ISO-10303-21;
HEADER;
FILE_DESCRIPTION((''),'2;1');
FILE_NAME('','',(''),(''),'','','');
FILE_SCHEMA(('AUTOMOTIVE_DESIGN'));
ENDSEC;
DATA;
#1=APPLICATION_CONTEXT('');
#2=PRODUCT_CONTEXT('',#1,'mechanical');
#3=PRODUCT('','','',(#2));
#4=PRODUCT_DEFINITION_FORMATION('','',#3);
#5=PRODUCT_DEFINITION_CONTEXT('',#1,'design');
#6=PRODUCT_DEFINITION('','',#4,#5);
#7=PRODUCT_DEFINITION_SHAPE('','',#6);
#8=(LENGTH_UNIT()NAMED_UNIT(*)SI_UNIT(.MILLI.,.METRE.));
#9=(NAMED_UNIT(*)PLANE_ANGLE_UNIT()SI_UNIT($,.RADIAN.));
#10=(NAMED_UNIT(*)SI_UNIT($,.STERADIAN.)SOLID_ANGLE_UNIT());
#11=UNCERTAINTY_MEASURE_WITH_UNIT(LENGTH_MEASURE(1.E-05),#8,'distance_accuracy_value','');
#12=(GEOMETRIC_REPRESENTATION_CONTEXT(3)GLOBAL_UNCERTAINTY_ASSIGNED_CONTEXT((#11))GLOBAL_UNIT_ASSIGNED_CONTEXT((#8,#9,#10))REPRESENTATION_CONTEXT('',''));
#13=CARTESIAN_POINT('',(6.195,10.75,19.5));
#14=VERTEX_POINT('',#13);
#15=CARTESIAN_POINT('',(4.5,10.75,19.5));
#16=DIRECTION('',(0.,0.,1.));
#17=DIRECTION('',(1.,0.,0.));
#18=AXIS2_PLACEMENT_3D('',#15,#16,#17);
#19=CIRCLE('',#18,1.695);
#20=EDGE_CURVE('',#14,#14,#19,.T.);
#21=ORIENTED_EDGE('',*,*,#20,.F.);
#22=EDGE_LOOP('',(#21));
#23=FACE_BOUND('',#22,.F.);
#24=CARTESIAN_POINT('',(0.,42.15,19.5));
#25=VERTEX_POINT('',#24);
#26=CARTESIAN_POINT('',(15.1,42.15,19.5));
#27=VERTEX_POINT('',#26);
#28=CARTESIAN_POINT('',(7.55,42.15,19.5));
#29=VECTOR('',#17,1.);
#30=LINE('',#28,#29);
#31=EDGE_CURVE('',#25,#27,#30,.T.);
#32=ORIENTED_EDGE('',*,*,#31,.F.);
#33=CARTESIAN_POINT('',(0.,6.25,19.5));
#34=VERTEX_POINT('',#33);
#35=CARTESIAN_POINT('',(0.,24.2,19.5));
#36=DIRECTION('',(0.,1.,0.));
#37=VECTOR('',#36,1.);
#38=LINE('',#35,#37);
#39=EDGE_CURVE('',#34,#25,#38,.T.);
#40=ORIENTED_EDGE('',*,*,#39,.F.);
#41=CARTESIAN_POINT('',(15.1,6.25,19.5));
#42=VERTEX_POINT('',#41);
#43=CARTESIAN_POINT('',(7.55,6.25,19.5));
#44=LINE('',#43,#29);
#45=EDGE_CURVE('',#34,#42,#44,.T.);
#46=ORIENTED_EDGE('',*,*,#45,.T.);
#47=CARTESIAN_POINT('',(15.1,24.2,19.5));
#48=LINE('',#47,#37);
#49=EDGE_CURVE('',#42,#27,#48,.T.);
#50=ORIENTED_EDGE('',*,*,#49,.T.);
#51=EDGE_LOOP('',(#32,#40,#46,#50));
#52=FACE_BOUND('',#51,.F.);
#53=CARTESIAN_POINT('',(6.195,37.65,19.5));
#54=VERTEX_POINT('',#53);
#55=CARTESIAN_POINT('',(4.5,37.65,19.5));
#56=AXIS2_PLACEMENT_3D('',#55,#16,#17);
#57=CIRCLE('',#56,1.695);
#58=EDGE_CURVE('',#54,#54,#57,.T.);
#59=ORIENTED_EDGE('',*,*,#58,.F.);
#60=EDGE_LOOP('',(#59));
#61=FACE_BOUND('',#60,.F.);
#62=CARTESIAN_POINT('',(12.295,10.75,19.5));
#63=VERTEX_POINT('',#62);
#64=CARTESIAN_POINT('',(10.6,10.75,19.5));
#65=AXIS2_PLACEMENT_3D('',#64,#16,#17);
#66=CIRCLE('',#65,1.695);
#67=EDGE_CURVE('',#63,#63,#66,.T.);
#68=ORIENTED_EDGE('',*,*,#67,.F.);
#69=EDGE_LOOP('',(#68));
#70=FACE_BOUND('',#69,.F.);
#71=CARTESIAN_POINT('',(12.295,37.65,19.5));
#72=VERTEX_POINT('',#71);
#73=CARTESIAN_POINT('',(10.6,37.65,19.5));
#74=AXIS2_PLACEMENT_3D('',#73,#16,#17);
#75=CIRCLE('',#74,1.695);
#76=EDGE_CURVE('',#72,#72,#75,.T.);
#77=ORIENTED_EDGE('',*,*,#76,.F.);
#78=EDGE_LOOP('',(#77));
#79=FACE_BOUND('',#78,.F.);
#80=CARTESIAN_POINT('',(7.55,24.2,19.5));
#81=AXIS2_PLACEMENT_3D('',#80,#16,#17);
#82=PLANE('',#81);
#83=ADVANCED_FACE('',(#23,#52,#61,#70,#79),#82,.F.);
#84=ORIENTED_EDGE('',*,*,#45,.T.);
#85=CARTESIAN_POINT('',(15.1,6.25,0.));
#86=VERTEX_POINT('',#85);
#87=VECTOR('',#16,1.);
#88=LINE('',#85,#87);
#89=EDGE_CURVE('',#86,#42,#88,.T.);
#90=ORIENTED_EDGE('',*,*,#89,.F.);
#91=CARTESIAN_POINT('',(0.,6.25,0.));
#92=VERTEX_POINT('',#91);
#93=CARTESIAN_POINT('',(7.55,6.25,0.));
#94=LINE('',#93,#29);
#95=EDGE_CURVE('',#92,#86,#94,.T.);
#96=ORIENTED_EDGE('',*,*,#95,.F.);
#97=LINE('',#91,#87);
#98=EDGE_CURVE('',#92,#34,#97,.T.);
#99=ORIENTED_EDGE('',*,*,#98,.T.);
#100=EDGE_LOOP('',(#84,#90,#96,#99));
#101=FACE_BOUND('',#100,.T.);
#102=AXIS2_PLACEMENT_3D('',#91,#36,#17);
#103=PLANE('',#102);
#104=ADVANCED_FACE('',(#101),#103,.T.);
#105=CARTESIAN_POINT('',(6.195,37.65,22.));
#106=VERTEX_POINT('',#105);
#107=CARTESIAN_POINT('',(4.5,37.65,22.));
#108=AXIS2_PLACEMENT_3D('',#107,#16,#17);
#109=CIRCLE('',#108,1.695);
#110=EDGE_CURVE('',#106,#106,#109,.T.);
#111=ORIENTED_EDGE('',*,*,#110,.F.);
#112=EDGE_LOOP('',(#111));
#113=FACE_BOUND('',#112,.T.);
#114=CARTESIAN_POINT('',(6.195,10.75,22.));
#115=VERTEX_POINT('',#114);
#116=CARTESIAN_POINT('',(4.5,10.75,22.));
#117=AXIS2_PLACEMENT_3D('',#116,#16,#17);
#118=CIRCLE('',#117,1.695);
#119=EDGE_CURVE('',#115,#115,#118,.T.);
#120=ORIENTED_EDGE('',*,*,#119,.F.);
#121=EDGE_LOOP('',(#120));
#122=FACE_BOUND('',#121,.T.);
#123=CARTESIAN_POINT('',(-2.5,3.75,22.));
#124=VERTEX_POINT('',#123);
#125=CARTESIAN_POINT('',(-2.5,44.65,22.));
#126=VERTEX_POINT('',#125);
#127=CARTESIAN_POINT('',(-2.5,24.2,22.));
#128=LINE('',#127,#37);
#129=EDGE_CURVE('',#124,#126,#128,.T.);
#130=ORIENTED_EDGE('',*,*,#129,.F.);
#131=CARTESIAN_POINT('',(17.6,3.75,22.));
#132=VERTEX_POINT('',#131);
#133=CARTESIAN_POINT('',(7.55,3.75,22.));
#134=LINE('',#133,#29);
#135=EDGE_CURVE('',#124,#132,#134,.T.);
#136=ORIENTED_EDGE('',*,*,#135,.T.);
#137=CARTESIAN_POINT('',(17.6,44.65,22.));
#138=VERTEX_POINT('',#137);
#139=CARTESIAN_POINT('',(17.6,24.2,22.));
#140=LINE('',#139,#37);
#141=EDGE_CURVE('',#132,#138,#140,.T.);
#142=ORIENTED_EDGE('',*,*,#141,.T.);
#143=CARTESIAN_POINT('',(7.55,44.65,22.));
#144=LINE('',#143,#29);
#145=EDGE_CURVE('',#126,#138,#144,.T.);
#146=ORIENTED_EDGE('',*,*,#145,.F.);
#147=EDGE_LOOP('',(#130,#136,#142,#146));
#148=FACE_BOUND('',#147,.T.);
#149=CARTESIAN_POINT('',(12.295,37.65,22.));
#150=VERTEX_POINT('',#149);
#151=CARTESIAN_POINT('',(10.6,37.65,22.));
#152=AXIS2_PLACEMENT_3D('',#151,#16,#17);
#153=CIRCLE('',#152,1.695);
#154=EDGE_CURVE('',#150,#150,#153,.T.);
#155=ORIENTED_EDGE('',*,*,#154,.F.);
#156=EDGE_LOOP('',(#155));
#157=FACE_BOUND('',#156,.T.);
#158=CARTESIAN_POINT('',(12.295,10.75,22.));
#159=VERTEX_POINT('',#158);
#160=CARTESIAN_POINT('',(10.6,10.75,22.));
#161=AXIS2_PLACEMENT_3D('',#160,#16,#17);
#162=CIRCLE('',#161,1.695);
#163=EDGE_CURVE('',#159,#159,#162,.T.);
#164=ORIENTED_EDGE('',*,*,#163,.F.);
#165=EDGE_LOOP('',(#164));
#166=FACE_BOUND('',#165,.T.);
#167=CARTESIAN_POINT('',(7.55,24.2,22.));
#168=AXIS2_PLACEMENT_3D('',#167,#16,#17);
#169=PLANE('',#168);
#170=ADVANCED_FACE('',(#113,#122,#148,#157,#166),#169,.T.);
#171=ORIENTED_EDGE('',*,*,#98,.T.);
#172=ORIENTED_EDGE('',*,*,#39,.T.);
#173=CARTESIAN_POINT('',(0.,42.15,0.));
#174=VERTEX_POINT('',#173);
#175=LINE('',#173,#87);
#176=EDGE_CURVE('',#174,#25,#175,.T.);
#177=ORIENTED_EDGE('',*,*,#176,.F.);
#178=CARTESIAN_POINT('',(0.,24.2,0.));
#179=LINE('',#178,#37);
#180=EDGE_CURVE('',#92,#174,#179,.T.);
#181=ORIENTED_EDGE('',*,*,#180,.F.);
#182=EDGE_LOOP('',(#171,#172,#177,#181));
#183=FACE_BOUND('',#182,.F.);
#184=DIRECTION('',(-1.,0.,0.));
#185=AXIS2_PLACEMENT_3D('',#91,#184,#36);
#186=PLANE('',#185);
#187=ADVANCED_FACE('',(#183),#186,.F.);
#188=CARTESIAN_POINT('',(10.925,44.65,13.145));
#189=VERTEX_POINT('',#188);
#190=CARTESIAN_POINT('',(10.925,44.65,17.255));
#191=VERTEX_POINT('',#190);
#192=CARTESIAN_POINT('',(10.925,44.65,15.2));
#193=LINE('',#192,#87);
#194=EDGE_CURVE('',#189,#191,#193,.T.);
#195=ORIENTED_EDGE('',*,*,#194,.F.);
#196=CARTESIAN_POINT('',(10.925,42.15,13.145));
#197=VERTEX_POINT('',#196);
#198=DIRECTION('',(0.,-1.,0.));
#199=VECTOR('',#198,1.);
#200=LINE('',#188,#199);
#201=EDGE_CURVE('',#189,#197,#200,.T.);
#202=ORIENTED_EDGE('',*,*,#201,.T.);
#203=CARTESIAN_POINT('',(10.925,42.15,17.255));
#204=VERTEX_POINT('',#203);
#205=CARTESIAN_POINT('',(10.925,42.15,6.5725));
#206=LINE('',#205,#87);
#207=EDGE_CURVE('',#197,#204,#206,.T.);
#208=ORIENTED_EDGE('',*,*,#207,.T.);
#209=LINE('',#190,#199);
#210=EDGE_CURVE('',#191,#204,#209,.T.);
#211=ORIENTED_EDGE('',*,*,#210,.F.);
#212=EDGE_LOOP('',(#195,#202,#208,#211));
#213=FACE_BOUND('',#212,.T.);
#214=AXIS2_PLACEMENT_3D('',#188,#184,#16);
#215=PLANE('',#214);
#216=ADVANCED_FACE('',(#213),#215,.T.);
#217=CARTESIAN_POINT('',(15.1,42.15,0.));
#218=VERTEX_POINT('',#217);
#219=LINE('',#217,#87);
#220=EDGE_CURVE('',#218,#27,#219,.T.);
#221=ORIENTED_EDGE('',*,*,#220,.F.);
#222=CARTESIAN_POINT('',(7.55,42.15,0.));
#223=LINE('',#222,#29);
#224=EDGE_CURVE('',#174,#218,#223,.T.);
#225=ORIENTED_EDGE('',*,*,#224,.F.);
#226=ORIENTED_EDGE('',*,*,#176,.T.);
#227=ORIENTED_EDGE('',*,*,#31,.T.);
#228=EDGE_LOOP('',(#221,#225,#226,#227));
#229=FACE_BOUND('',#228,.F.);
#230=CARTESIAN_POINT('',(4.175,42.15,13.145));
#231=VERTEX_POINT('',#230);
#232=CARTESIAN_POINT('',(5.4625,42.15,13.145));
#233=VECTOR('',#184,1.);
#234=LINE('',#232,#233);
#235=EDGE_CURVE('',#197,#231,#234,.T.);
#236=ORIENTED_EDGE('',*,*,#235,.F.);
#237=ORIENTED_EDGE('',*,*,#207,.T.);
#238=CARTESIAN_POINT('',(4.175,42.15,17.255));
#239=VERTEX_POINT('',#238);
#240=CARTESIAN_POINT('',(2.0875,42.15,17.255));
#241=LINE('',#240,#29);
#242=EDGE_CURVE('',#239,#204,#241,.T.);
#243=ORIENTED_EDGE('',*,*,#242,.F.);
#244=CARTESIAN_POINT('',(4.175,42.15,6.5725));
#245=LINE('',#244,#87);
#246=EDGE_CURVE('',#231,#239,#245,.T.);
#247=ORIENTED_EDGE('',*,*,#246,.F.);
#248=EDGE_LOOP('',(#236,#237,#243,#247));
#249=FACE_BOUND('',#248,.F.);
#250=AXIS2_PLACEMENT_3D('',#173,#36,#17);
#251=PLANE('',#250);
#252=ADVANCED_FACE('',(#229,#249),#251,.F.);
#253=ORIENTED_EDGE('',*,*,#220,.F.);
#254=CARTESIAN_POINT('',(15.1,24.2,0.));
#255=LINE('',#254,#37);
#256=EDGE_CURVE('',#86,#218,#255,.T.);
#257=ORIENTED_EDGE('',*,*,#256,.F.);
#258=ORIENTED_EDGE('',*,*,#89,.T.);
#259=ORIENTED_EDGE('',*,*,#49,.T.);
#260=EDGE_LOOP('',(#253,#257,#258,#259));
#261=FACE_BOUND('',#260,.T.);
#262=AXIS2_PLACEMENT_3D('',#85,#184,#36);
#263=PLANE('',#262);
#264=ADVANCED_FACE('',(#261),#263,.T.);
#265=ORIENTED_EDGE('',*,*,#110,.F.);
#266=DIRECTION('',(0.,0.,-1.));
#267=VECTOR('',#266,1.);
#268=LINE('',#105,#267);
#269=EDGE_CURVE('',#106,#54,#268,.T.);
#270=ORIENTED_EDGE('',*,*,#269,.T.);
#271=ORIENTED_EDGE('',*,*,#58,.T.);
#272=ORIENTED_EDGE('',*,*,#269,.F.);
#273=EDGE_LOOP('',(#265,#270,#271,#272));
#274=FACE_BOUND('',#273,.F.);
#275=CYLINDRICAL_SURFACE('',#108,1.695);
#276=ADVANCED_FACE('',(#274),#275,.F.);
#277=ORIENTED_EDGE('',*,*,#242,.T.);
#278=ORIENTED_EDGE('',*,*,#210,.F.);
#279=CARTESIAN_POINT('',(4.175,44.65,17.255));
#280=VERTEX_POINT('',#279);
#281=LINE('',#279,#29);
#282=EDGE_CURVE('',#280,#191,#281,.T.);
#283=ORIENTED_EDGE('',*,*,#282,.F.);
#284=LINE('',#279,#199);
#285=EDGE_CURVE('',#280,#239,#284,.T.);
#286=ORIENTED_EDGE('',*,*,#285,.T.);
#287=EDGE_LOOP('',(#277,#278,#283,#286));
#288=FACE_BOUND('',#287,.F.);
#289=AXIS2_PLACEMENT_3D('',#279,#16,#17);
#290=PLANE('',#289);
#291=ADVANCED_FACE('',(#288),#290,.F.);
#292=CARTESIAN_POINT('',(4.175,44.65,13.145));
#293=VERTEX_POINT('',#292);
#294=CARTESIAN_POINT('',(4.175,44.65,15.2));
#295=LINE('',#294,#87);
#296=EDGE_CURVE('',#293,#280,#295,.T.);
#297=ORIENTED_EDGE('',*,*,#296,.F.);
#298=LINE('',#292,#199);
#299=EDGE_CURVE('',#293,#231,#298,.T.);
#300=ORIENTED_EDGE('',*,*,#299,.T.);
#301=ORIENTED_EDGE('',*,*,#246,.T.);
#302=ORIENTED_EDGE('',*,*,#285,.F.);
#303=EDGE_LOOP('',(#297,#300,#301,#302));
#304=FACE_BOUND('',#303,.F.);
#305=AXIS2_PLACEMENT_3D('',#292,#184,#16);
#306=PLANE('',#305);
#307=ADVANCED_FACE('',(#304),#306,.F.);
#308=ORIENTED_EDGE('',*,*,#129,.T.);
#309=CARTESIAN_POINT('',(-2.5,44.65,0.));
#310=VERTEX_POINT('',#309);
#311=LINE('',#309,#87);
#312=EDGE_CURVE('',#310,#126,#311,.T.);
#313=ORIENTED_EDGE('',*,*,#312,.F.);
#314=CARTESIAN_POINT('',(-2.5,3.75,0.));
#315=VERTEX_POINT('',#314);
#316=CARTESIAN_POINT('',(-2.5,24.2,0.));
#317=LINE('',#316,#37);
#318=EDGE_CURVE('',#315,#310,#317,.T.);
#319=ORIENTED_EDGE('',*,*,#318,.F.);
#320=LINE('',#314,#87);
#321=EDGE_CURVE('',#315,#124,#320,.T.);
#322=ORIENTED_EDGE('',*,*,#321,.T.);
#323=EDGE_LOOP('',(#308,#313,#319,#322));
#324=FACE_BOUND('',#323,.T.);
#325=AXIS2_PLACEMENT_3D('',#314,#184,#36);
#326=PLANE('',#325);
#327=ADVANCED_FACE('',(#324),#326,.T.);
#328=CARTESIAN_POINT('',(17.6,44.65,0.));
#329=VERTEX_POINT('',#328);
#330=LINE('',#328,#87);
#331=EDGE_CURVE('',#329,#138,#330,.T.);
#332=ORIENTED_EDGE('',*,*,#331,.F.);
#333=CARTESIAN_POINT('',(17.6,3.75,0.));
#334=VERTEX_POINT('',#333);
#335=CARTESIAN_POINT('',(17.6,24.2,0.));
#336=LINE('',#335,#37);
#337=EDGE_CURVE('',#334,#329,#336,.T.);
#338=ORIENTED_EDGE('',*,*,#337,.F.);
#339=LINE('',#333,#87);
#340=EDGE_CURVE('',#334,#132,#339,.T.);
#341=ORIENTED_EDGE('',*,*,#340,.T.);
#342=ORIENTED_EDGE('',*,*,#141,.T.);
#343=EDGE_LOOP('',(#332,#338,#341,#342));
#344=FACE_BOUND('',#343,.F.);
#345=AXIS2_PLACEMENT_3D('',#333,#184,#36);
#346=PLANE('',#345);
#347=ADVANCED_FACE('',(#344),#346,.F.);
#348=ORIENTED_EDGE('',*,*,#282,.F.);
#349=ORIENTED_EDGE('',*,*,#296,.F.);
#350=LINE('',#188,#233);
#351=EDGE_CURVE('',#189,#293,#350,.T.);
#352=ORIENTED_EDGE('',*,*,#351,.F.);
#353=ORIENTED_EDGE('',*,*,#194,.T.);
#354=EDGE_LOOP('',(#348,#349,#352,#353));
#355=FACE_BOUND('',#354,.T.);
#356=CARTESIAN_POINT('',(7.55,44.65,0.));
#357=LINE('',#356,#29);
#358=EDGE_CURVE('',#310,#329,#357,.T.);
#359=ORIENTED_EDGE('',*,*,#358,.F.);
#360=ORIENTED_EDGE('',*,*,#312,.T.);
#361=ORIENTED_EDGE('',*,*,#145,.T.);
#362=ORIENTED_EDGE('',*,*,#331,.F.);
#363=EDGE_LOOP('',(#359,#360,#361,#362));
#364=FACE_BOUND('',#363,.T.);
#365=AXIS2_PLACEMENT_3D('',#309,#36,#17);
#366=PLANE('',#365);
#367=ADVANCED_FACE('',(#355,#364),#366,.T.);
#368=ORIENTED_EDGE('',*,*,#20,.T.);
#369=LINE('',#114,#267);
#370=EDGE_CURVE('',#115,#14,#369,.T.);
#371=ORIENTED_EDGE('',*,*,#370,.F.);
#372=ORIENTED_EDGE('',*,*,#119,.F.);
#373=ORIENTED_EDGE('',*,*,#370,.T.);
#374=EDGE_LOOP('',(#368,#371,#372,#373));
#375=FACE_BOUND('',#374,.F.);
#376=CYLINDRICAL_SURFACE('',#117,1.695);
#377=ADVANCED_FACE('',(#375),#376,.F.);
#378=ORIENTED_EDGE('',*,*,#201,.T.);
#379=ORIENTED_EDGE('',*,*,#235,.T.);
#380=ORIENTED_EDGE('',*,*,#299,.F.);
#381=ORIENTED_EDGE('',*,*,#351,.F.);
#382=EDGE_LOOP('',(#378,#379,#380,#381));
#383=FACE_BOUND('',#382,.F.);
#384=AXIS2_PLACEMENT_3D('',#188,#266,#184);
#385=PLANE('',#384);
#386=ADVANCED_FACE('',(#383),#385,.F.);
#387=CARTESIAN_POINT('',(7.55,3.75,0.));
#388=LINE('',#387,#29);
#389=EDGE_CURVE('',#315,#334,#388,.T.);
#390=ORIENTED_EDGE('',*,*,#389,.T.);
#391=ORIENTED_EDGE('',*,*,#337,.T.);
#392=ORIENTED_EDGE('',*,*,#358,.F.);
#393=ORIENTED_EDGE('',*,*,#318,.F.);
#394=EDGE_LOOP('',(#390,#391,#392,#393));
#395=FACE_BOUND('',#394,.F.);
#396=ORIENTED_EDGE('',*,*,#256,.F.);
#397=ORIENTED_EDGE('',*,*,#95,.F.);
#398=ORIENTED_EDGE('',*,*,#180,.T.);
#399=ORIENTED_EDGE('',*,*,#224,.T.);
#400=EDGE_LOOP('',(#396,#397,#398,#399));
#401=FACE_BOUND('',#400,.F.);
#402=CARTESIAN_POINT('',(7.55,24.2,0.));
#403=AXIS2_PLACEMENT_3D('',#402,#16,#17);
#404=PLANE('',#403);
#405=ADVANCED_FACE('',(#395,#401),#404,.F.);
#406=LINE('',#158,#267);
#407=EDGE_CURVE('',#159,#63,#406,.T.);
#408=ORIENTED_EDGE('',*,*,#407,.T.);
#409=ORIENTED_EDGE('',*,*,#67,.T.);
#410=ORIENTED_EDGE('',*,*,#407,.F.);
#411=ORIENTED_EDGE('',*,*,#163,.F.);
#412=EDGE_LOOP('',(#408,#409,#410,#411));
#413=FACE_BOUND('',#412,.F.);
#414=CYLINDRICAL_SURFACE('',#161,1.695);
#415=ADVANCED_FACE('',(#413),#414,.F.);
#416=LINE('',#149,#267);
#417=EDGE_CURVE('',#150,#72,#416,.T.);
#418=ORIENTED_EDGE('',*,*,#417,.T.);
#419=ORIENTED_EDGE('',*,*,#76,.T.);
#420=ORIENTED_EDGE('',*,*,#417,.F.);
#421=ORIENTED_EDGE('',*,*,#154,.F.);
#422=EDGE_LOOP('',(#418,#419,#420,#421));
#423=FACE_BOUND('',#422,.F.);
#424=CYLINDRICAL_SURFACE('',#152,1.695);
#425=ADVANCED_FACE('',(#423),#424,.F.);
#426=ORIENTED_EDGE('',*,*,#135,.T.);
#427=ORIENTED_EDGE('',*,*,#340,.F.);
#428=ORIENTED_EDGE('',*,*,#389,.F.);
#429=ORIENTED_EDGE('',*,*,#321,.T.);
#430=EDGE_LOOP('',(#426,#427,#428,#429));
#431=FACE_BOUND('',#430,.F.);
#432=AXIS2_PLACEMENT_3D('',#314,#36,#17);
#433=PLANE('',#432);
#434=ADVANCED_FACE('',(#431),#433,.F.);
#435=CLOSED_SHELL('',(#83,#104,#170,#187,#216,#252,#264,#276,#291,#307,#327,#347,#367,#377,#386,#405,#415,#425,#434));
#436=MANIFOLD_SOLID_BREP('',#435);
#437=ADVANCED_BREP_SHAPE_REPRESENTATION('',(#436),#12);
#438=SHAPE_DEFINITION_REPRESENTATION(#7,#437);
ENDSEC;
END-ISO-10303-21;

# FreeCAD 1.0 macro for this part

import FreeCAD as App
import Part
import Sketcher

V = App.Vector


def add_polygon(sketch, points):
    """Adds a closed chain of lines whose ends are joined by coincident constraints."""
    first, n = sketch.GeometryCount, len(points)
    for a, b in zip(points, points[1:] + points[:1]):
        sketch.addGeometry(Part.LineSegment(App.Vector(*a, 0), App.Vector(*b, 0)), False)
    for i in range(n):
        sketch.addConstraint(Sketcher.Constraint("Coincident", first + i, 2, first + (i + 1) % n, 1))

doc = App.newDocument("Part")
body = doc.addObject("PartDesign::Body", "Body")

# Sketch on XY plane
sketch1 = body.newObject("Sketcher::SketchObject", "Sketch")
sketch1.AttachmentSupport = (doc.getObject("XY_Plane"), [""])
sketch1.MapMode = "FlatFace"
add_polygon(sketch1, [(-2, 45), (-2, 4), (18, 4), (18, 45)])  # lines 0-3
sketch1.addConstraint([
    Sketcher.Constraint("Vertical", 0),
    Sketcher.Constraint("Horizontal", 1),
    Sketcher.Constraint("Vertical", 2),
    Sketcher.Constraint("Horizontal", 3),
    Sketcher.Constraint("DistanceX", 1, 1, 1, 2, 20.1),
    Sketcher.Constraint("DistanceY", 0, 2, 0, 1, 40.9),
    Sketcher.Constraint("DistanceX", 0, 2, -1, 1, 2.5),
    Sketcher.Constraint("DistanceY", -1, 1, 0, 2, 3.75),
])
pad1 = body.newObject("PartDesign::Pad", "Pad")
pad1.Profile = sketch1
pad1.Length = 22

# Sketch on XY plane
sketch2 = body.newObject("Sketcher::SketchObject", "Sketch001")
sketch2.AttachmentSupport = (doc.getObject("XY_Plane"), [""])
sketch2.MapMode = "FlatFace"
add_polygon(sketch2, [(0, 42), (0, 6), (15, 6), (15, 42)])  # lines 0-3
sketch2.addConstraint([
    Sketcher.Constraint("Vertical", 0),
    Sketcher.Constraint("Horizontal", 1),
    Sketcher.Constraint("Vertical", 2),
    Sketcher.Constraint("Horizontal", 3),
    Sketcher.Constraint("PointOnObject", 0, 2, -2),
    Sketcher.Constraint("DistanceX", 1, 1, 1, 2, 15.1),
    Sketcher.Constraint("DistanceY", 0, 2, 0, 1, 35.9),
    Sketcher.Constraint("DistanceY", -1, 1, 0, 2, 6.25),
])
pocket1 = body.newObject("PartDesign::Pocket", "Pocket")
pocket1.Profile = sketch2
pocket1.Length = 19.5
pocket1.Reversed = True

# Sketch on XY plane
sketch3 = body.newObject("Sketcher::SketchObject", "Sketch002")
sketch3.AttachmentSupport = (doc.getObject("XY_Plane"), [""])
sketch3.MapMode = "FlatFace"
sketch3.AttachmentOffset = App.Placement(V(0, 0, 22), App.Rotation())
sketch3.addGeometry([
    Part.Circle(V(4.5, 37.6, 0), V(0, 0, 1), 1.7),
    Part.Circle(V(10.6, 37.6, 0), V(0, 0, 1), 1.7),
    Part.Circle(V(4.5, 10.8, 0), V(0, 0, 1), 1.7),
    Part.Circle(V(10.6, 10.8, 0), V(0, 0, 1), 1.7),
], False)
sketch3.addConstraint([
    Sketcher.Constraint("Equal", 0, 1),
    Sketcher.Constraint("Equal", 1, 2),
    Sketcher.Constraint("Equal", 2, 3),
    Sketcher.Constraint("Horizontal", 0, 3, 1, 3),
    Sketcher.Constraint("Horizontal", 2, 3, 3, 3),
    Sketcher.Constraint("Vertical", 0, 3, 2, 3),
    Sketcher.Constraint("Vertical", 1, 3, 3, 3),
    Sketcher.Constraint("Diameter", 0, 3.39),
    Sketcher.Constraint("DistanceX", -1, 1, 0, 3, 4.5),
    Sketcher.Constraint("DistanceX", -1, 1, 1, 3, 10.6),
    Sketcher.Constraint("DistanceY", 2, 3, 0, 3, 26.9),
    Sketcher.Constraint("DistanceY", -1, 1, 0, 3, 37.65),
])
pocket2 = body.newObject("PartDesign::Pocket", "Pocket001")
pocket2.Profile = sketch3
pocket2.Length = 25

# Sketch on XZ plane
sketch4 = body.newObject("Sketcher::SketchObject", "Sketch003")
sketch4.AttachmentSupport = (doc.getObject("XZ_Plane"), [""])
sketch4.MapMode = "FlatFace"
sketch4.AttachmentOffset = App.Placement(V(0, 0, -44.65), App.Rotation())
add_polygon(sketch4, [(4.2, 13.1), (4.2, 17.3), (10.9, 17.3), (10.9, 13.1)])  # lines 0-3
sketch4.addConstraint([
    Sketcher.Constraint("Vertical", 0),
    Sketcher.Constraint("Horizontal", 1),
    Sketcher.Constraint("Vertical", 2),
    Sketcher.Constraint("Horizontal", 3),
    Sketcher.Constraint("DistanceX", 1, 1, 1, 2, 6.75),
    Sketcher.Constraint("DistanceY", 0, 1, 0, 2, 4.11),
    Sketcher.Constraint("DistanceX", -1, 1, 0, 2, 4.175),
    Sketcher.Constraint("DistanceY", -1, 1, 0, 2, 17.255),
])
pocket3 = body.newObject("PartDesign::Pocket", "Pocket002")
pocket3.Profile = sketch4
pocket3.Length = 25
pocket3.Reversed = True

doc.recompute()
